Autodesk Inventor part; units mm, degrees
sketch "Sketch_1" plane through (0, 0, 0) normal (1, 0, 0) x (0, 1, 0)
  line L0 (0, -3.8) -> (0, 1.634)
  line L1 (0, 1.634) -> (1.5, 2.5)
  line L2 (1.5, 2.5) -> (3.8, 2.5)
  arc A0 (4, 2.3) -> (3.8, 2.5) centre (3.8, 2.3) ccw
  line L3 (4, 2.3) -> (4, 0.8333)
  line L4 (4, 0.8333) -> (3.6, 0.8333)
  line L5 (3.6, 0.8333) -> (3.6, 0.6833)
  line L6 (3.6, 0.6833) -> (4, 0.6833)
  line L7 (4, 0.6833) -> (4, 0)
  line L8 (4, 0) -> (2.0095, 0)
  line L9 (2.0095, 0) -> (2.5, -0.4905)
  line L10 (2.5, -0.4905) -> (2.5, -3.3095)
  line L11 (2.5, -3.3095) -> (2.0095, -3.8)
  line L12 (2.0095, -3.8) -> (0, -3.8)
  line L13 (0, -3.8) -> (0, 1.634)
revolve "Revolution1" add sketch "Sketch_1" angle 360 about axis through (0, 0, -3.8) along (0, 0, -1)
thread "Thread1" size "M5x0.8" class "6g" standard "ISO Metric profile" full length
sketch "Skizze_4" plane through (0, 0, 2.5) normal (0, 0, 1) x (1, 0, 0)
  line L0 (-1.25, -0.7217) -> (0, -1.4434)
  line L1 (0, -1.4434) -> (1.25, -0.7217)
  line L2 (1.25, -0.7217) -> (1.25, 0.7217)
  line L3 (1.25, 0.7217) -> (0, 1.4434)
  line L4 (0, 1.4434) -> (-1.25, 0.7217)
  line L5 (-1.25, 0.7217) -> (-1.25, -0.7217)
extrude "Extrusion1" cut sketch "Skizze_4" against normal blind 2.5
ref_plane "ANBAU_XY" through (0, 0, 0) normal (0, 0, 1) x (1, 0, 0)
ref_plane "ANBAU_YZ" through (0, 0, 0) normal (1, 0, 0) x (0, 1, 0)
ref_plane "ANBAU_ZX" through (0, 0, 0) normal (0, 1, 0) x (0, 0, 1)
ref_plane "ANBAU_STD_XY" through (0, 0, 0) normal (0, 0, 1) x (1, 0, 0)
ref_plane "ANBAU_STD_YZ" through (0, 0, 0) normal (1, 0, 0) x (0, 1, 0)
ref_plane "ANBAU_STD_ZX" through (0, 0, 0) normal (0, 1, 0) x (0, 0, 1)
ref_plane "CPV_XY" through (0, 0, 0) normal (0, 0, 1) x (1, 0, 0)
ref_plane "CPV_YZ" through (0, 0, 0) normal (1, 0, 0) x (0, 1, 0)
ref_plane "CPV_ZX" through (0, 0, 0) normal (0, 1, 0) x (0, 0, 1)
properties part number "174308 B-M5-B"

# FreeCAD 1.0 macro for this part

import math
import FreeCAD as App
import Part
import Sketcher
from FreeCAD import Vector
Q = App.Units.Quantity


def add_polygon(sketch, points):
    """Adds a closed chain of lines whose ends are joined by coincident constraints."""
    first, n = sketch.GeometryCount, len(points)
    for a, b in zip(points, points[1:] + points[:1]):
        sketch.addGeometry(Part.LineSegment(App.Vector(*a, 0), App.Vector(*b, 0)), False)
    for i in range(n):
        sketch.addConstraint(Sketcher.Constraint("Coincident", first + i, 2, first + (i + 1) % n, 1))

doc = App.newDocument("Part")
params = doc.addObject("Spreadsheet::Sheet", "Params")
for row, (alias, value) in enumerate([
    ("sketch1_radius", "0.2 mm"),
    ("sketch1_width", "0.4 mm"),
    ("sketch1_width2", "2.3 mm"),
    ("sketch1_height", "0.15 mm"),
    ("revolution_angle", "360 deg"),
    ("pocket1_length", "2.5 mm"),
], start=1):
    params.set(f"A{row}", alias)
    params.set(f"B{row}", "=" + value)
    params.setAlias(f"B{row}", alias)

body = doc.addObject("PartDesign::Body", "Body")

# Sketch on YZ plane
sketch1 = body.newObject("Sketcher::SketchObject", "Sketch")
sketch1.AttachmentSupport = (doc.getObject("YZ_Plane"), [""])
sketch1.MapMode = "FlatFace"
sketch1.addGeometry([
    Part.LineSegment(Vector(0, 1.63, 0), Vector(0, -3.8, 0)),  # 0
    Part.LineSegment(Vector(0, -3.8, 0), Vector(2.01, -3.8, 0)),  # 1
    Part.LineSegment(Vector(2.01, -3.8, 0), Vector(2.5, -3.31, 0)),  # 2
    Part.LineSegment(Vector(2.5, -3.31, 0), Vector(2.5, -0.49, 0)),  # 3
    Part.LineSegment(Vector(2.5, -0.49, 0), Vector(2.01, 0, 0)),  # 4
    Part.LineSegment(Vector(2.01, 0, 0), Vector(4, 0, 0)),  # 5
    Part.LineSegment(Vector(4, 0, 0), Vector(4, 0.68, 0)),  # 6
    Part.LineSegment(Vector(4, 0.68, 0), Vector(3.6, 0.68, 0)),  # 7
    Part.LineSegment(Vector(3.6, 0.68, 0), Vector(3.6, 0.83, 0)),  # 8
    Part.LineSegment(Vector(3.6, 0.83, 0), Vector(4, 0.83, 0)),  # 9
    Part.LineSegment(Vector(4, 0.83, 0), Vector(4, 2.3, 0)),  # 10
    Part.ArcOfCircle(Part.Circle(Vector(3.8, 2.3, 0), Vector(0, 0, 1), 0.2), math.radians(0), math.radians(90)),  # 11
    Part.LineSegment(Vector(3.8, 2.5, 0), Vector(1.5, 2.5, 0)),  # 12
    Part.LineSegment(Vector(1.5, 2.5, 0), Vector(0, 1.63, 0)),  # 13
], False)
sketch1.addConstraint([
    Sketcher.Constraint("Coincident", 0, 2, 1, 1),
    Sketcher.Constraint("Coincident", 1, 2, 2, 1),
    Sketcher.Constraint("Coincident", 2, 2, 3, 1),
    Sketcher.Constraint("Coincident", 3, 2, 4, 1),
    Sketcher.Constraint("Coincident", 4, 2, 5, 1),
    Sketcher.Constraint("Coincident", 5, 2, 6, 1),
    Sketcher.Constraint("Coincident", 6, 2, 7, 1),
    Sketcher.Constraint("Coincident", 7, 2, 8, 1),
    Sketcher.Constraint("Coincident", 8, 2, 9, 1),
    Sketcher.Constraint("Coincident", 9, 2, 10, 1),
    Sketcher.Constraint("Tangent", 10, 2, 11, 1),
    Sketcher.Constraint("Tangent", 11, 2, 12, 1),
    Sketcher.Constraint("Coincident", 12, 2, 13, 1),
    Sketcher.Constraint("Coincident", 13, 2, 0, 1),
    Sketcher.Constraint("Vertical", 0),
    Sketcher.Constraint("Horizontal", 1),
    Sketcher.Constraint("Vertical", 3),
    Sketcher.Constraint("Horizontal", 5),
    Sketcher.Constraint("Vertical", 6),
    Sketcher.Constraint("Horizontal", 7),
    Sketcher.Constraint("Vertical", 8),
    Sketcher.Constraint("Horizontal", 9),
    Sketcher.Constraint("Vertical", 10),
    Sketcher.Constraint("Horizontal", 12),
    Sketcher.Constraint("PointOnObject", 0, 2, -2),
    Sketcher.Constraint("PointOnObject", 4, 2, -1),
    Sketcher.Constraint("Perpendicular", 2, 4),
    Sketcher.Constraint("Vertical", 1, 2, 4, 2),
    Sketcher.Constraint("Vertical", 6, 2, 9, 2),
    Sketcher.Constraint("Equal", 2, 4),
    Sketcher.Constraint("Radius", 11, 0.2),
    Sketcher.Constraint("Angle", 13, Q("-150.0007 deg")),
    Sketcher.Constraint("DistanceX", 7, 2, 7, 1, 0.4),
    Sketcher.Constraint("DistanceX", 12, 2, 12, 1, 2.3),
    Sketcher.Constraint("DistanceX", -1, 1, 5, 2, 4.0),
    Sketcher.Constraint("DistanceY", 8, 1, 8, 2, 0.15),
    Sketcher.Constraint("DistanceY", -1, 1, 11, 3, 2.3),
    Sketcher.Constraint("DistanceY", 0, 2, -1, 1, 3.8),
    Sketcher.Constraint("DistanceX", -1, 1, 2, 2, 2.5),
    Sketcher.Constraint("DistanceY", 3, 1, 3, 2, 2.819),
    Sketcher.Constraint("DistanceY", 6, 1, 6, 2, 0.6833),
])
sketch1.setExpression("Constraints[30]", "Params.sketch1_radius")
sketch1.setExpression("Constraints[32]", "Params.sketch1_width")
sketch1.setExpression("Constraints[33]", "Params.sketch1_width2")
sketch1.setExpression("Constraints[35]", "Params.sketch1_height")
revolution = body.newObject("PartDesign::Revolution", "Revolution")
revolution.Profile = sketch1
revolution.ReferenceAxis = (sketch1, ["V_Axis"])
revolution.setExpression("Angle", "Params.revolution_angle")

# Sketch on XY plane
sketch2 = body.newObject("Sketcher::SketchObject", "Sketch001")
sketch2.AttachmentSupport = (doc.getObject("XY_Plane"), [""])
sketch2.MapMode = "FlatFace"
sketch2.AttachmentOffset = App.Placement(Vector(0, 0, 2.5), App.Rotation())
add_polygon(sketch2, [(-1.2, 0.7), (-1.2, -0.7), (0, -1.4), (1.2, -0.7), (1.2, 0.7), (0, 1.4)])  # lines 0-5
sketch2.addConstraint([
    Sketcher.Constraint("Vertical", 0),
    Sketcher.Constraint("Vertical", 3),
    Sketcher.Constraint("Symmetric", 0, 2, 3, 2, -1, 1),
    Sketcher.Constraint("Symmetric", 1, 2, 4, 2, -1, 1),
    Sketcher.Constraint("PointOnObject", 1, 2, -2),
    Sketcher.Constraint("Parallel", 2, 5),
    Sketcher.Constraint("Horizontal", 0, 2, 2, 2),
    Sketcher.Constraint("Angle", 1, Q("-30.0004 deg")),
    Sketcher.Constraint("DistanceX", 0, 2, 2, 2, 2.5),
    Sketcher.Constraint("DistanceY", 0, 2, 0, 1, 1.4434),
])
pocket1 = body.newObject("PartDesign::Pocket", "Pocket")
pocket1.Profile = sketch2
pocket1.setExpression("Length", "Params.pocket1_length")

doc.recompute()
